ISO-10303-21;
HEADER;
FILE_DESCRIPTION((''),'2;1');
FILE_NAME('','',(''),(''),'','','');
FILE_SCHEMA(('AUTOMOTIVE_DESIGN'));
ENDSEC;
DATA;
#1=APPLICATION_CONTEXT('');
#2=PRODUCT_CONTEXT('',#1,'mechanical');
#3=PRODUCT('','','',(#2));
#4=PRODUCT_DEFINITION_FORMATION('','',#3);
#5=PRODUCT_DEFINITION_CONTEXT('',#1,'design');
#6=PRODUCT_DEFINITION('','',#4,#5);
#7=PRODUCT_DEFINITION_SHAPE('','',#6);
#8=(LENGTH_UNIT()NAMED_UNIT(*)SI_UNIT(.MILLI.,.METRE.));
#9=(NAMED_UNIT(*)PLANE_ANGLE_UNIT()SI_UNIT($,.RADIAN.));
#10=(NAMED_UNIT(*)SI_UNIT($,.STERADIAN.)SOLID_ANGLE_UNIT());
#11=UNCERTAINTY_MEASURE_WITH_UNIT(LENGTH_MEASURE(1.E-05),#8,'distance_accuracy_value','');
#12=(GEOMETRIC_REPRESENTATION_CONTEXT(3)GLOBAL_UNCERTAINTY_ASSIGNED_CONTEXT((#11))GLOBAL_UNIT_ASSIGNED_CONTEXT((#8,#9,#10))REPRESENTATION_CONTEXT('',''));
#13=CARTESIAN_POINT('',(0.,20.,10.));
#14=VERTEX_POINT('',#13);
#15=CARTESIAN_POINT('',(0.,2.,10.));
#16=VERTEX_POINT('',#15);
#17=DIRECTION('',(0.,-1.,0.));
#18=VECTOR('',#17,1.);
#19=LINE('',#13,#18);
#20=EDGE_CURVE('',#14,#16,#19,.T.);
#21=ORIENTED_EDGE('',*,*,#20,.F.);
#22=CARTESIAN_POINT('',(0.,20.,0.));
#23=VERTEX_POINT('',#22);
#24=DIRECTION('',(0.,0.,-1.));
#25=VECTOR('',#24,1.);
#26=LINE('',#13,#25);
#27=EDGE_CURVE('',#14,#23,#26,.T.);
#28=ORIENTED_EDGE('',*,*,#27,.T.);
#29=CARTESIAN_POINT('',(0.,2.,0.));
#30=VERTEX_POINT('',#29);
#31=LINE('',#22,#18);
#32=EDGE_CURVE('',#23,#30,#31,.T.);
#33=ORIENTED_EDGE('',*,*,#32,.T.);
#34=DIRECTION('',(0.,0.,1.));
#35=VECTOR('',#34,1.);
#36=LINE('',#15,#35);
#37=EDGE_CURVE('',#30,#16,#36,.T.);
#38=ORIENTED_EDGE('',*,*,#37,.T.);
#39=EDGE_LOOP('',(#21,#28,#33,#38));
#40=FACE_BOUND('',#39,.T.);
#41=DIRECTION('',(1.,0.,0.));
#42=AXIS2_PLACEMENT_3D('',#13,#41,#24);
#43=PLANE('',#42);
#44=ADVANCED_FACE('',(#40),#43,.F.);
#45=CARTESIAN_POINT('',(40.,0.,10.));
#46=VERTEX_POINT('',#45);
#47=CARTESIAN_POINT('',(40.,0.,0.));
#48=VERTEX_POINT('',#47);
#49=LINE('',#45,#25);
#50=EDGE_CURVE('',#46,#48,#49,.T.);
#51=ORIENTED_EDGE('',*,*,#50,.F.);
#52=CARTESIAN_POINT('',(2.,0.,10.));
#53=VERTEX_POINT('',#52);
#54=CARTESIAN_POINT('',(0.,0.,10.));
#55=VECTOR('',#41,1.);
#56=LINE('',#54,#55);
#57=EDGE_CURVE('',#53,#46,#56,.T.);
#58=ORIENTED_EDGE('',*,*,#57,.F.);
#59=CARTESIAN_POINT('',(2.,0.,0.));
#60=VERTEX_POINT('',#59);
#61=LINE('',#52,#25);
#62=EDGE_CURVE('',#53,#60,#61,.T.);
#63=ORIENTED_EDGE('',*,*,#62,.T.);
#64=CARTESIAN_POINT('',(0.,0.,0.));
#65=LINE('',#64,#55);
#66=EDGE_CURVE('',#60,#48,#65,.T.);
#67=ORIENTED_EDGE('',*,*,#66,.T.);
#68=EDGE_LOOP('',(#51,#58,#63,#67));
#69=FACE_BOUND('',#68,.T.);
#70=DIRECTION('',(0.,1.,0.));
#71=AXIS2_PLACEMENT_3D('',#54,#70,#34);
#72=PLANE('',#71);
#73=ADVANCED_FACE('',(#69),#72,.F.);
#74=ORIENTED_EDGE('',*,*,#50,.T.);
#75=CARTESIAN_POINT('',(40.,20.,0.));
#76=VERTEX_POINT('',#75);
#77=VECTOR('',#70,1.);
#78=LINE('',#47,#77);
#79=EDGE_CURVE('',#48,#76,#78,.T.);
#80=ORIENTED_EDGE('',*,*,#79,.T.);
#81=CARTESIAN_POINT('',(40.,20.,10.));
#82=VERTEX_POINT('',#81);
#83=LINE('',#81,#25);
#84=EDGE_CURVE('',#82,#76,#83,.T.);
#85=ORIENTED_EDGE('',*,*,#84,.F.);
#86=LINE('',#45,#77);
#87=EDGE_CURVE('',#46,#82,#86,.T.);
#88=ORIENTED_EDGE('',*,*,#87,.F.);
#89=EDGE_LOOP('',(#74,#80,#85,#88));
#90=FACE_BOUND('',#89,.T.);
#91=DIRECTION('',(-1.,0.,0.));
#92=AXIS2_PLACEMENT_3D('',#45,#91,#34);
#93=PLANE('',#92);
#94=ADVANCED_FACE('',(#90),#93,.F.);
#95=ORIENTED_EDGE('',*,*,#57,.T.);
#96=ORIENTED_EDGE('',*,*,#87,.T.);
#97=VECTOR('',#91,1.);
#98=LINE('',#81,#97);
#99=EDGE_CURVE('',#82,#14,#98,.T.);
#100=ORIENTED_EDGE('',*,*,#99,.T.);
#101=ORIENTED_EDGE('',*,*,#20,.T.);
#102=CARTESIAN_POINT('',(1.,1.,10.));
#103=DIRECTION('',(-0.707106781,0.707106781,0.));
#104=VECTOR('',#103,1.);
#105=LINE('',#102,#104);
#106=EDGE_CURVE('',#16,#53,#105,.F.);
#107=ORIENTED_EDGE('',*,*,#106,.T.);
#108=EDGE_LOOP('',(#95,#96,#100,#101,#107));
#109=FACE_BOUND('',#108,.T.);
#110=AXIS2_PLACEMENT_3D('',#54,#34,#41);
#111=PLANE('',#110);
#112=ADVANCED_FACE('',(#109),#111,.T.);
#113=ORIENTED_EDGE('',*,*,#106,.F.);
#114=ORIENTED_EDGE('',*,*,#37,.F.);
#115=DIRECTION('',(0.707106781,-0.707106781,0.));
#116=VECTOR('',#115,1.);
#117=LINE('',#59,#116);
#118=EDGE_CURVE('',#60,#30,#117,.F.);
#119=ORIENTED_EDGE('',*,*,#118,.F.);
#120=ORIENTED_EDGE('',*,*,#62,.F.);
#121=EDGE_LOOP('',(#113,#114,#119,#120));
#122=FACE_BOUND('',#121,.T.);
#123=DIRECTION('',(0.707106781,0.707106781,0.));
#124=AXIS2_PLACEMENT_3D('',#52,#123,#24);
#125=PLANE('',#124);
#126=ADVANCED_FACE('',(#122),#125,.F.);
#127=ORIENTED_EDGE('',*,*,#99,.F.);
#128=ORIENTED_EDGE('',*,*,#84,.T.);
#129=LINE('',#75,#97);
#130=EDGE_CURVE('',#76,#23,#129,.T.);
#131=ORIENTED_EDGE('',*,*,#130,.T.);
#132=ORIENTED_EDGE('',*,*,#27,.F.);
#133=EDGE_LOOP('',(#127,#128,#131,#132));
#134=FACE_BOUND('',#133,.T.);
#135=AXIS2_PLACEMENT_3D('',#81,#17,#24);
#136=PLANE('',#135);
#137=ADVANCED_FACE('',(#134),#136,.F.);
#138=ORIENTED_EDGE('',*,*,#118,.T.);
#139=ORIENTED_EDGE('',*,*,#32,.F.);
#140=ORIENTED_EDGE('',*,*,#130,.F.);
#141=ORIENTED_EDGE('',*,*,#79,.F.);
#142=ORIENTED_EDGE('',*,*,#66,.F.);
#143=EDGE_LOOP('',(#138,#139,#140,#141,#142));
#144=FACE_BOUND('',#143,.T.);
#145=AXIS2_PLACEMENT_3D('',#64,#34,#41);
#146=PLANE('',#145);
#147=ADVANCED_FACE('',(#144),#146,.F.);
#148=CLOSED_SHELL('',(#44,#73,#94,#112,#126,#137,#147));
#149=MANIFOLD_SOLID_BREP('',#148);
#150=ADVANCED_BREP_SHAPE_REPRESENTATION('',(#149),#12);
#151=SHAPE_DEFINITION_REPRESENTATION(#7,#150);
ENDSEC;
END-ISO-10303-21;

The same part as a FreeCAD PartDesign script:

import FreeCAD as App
import Part
import Sketcher
Q = App.Units.Quantity


def edges_at(feature, points):
    """Names of the edges that pass closest to the given points."""
    edges = feature.Shape.Edges
    near = lambda p: min(range(len(edges)), key=lambda i: edges[i].distToShape(Part.Vertex(*p))[0])
    return sorted({f"Edge{near(p) + 1}" for p in points})

doc = App.newDocument("Part")
params = doc.addObject("Spreadsheet::Sheet", "Params")
for row, (alias, value) in enumerate([
    ("sketch1_width", "40 mm"),
    ("sketch1_height", "20 mm"),
    ("pad1_length", "10 mm"),
    ("chamfer_size", "2 mm"),
], start=1):
    params.set(f"A{row}", alias)
    params.set(f"B{row}", "=" + value)
    params.setAlias(f"B{row}", alias)

body = doc.addObject("PartDesign::Body", "Body")

sketch1 = body.newObject("Sketcher::SketchObject", "Sketch")
sketch1.AttachmentSupport = (doc.getObject("XY_Plane"), [""])
sketch1.MapMode = "FlatFace"
sketch1.addGeometry([
    Part.LineSegment(App.Vector(0, 20, 0), App.Vector(0, 0, 0)),
    Part.LineSegment(App.Vector(0, 0, 0), App.Vector(40, 0, 0)),
    Part.LineSegment(App.Vector(40, 0, 0), App.Vector(40, 20, 0)),
    Part.LineSegment(App.Vector(40, 20, 0), App.Vector(0, 20, 0)),
], False)
sketch1.addConstraint([
    Sketcher.Constraint("Coincident", 0, 2, 1, 1),
    Sketcher.Constraint("Coincident", 1, 2, 2, 1),
    Sketcher.Constraint("Coincident", 2, 2, 3, 1),
    Sketcher.Constraint("Coincident", 3, 2, 0, 1),
    Sketcher.Constraint("Vertical", 0),
    Sketcher.Constraint("Horizontal", 1),
    Sketcher.Constraint("Vertical", 2),
    Sketcher.Constraint("Horizontal", 3),
    Sketcher.Constraint("Coincident", 0, 2, -1, 1),
    Sketcher.Constraint("DistanceX", 1, 1, 1, 2, Q("40 mm")),
    Sketcher.Constraint("DistanceY", 0, 2, 0, 1, Q("20 mm")),
])
sketch1.setExpression("Constraints[9]", "Params.sketch1_width")
sketch1.setExpression("Constraints[10]", "Params.sketch1_height")
pad1 = body.newObject("PartDesign::Pad", "Pad")
pad1.Profile = sketch1
pad1.setExpression("Length", "Params.pad1_length")
doc.recompute()

chamfer = body.newObject("PartDesign::Chamfer", "Chamfer")
chamfer.Base = (pad1, edges_at(pad1, [(0, 0, 5)]))
chamfer.setExpression("Size", "Params.chamfer_size")

doc.recompute()
